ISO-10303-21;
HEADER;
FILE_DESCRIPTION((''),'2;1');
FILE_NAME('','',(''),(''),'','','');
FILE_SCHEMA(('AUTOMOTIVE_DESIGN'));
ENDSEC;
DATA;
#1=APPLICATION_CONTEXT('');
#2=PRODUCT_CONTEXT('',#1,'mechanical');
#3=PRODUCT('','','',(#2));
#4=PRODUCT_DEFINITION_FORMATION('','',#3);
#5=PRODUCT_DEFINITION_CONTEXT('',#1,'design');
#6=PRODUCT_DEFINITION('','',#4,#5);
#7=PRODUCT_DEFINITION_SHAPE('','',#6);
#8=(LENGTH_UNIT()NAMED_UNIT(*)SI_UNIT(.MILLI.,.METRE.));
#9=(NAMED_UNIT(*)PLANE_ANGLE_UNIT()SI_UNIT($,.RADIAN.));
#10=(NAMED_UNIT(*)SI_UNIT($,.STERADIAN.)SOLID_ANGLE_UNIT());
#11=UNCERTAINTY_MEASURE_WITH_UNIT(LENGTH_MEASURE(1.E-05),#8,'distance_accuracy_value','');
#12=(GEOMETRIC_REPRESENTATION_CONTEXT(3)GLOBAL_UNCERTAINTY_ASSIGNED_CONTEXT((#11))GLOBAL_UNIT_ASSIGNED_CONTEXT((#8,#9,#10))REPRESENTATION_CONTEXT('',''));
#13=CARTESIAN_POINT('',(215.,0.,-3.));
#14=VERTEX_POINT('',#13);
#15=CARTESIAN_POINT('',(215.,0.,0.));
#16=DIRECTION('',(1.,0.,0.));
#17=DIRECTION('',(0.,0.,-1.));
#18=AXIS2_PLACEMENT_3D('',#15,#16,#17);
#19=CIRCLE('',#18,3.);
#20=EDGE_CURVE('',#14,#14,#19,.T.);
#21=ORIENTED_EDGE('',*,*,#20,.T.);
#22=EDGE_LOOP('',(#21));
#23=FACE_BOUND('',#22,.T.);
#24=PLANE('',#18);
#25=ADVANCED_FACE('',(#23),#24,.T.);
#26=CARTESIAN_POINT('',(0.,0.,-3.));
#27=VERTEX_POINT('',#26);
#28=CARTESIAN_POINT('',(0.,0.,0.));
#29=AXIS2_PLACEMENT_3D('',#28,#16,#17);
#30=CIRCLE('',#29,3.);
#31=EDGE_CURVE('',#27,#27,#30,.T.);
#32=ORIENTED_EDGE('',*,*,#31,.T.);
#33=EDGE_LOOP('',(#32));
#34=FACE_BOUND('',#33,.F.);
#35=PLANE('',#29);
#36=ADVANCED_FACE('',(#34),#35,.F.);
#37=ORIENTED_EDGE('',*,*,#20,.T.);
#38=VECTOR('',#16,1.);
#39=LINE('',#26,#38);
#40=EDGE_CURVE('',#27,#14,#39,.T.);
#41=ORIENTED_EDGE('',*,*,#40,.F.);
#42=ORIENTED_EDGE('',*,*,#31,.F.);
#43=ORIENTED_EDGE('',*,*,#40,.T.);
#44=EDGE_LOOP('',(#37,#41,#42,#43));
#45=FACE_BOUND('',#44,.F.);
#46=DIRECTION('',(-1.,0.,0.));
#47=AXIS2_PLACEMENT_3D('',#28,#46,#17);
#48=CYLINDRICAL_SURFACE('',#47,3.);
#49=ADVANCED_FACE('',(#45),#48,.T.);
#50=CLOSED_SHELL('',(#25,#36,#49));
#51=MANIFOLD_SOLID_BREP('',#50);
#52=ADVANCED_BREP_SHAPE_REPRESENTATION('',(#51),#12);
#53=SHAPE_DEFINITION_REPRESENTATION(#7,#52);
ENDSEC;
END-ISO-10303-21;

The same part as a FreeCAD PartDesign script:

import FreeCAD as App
import Part
import Sketcher
Q = App.Units.Quantity

doc = App.newDocument("Part")
body = doc.addObject("PartDesign::Body", "Body")

# Sketch on YZ plane
sketch1 = body.newObject("Sketcher::SketchObject", "Sketch")
sketch1.AttachmentSupport = (doc.getObject("YZ_Plane"), [""])
sketch1.MapMode = "FlatFace"
sketch1.addGeometry(Part.Circle(App.Vector(0, 0, 0), App.Vector(0, 0, 1), 3), False)
sketch1.addConstraint([
    Sketcher.Constraint("Coincident", 0, 3, -1, 1),
    Sketcher.Constraint("Diameter", 0, Q("6 mm")),
])
pad1 = body.newObject("PartDesign::Pad", "Pad")
pad1.Profile = sketch1
pad1.Length = 215

doc.recompute()
